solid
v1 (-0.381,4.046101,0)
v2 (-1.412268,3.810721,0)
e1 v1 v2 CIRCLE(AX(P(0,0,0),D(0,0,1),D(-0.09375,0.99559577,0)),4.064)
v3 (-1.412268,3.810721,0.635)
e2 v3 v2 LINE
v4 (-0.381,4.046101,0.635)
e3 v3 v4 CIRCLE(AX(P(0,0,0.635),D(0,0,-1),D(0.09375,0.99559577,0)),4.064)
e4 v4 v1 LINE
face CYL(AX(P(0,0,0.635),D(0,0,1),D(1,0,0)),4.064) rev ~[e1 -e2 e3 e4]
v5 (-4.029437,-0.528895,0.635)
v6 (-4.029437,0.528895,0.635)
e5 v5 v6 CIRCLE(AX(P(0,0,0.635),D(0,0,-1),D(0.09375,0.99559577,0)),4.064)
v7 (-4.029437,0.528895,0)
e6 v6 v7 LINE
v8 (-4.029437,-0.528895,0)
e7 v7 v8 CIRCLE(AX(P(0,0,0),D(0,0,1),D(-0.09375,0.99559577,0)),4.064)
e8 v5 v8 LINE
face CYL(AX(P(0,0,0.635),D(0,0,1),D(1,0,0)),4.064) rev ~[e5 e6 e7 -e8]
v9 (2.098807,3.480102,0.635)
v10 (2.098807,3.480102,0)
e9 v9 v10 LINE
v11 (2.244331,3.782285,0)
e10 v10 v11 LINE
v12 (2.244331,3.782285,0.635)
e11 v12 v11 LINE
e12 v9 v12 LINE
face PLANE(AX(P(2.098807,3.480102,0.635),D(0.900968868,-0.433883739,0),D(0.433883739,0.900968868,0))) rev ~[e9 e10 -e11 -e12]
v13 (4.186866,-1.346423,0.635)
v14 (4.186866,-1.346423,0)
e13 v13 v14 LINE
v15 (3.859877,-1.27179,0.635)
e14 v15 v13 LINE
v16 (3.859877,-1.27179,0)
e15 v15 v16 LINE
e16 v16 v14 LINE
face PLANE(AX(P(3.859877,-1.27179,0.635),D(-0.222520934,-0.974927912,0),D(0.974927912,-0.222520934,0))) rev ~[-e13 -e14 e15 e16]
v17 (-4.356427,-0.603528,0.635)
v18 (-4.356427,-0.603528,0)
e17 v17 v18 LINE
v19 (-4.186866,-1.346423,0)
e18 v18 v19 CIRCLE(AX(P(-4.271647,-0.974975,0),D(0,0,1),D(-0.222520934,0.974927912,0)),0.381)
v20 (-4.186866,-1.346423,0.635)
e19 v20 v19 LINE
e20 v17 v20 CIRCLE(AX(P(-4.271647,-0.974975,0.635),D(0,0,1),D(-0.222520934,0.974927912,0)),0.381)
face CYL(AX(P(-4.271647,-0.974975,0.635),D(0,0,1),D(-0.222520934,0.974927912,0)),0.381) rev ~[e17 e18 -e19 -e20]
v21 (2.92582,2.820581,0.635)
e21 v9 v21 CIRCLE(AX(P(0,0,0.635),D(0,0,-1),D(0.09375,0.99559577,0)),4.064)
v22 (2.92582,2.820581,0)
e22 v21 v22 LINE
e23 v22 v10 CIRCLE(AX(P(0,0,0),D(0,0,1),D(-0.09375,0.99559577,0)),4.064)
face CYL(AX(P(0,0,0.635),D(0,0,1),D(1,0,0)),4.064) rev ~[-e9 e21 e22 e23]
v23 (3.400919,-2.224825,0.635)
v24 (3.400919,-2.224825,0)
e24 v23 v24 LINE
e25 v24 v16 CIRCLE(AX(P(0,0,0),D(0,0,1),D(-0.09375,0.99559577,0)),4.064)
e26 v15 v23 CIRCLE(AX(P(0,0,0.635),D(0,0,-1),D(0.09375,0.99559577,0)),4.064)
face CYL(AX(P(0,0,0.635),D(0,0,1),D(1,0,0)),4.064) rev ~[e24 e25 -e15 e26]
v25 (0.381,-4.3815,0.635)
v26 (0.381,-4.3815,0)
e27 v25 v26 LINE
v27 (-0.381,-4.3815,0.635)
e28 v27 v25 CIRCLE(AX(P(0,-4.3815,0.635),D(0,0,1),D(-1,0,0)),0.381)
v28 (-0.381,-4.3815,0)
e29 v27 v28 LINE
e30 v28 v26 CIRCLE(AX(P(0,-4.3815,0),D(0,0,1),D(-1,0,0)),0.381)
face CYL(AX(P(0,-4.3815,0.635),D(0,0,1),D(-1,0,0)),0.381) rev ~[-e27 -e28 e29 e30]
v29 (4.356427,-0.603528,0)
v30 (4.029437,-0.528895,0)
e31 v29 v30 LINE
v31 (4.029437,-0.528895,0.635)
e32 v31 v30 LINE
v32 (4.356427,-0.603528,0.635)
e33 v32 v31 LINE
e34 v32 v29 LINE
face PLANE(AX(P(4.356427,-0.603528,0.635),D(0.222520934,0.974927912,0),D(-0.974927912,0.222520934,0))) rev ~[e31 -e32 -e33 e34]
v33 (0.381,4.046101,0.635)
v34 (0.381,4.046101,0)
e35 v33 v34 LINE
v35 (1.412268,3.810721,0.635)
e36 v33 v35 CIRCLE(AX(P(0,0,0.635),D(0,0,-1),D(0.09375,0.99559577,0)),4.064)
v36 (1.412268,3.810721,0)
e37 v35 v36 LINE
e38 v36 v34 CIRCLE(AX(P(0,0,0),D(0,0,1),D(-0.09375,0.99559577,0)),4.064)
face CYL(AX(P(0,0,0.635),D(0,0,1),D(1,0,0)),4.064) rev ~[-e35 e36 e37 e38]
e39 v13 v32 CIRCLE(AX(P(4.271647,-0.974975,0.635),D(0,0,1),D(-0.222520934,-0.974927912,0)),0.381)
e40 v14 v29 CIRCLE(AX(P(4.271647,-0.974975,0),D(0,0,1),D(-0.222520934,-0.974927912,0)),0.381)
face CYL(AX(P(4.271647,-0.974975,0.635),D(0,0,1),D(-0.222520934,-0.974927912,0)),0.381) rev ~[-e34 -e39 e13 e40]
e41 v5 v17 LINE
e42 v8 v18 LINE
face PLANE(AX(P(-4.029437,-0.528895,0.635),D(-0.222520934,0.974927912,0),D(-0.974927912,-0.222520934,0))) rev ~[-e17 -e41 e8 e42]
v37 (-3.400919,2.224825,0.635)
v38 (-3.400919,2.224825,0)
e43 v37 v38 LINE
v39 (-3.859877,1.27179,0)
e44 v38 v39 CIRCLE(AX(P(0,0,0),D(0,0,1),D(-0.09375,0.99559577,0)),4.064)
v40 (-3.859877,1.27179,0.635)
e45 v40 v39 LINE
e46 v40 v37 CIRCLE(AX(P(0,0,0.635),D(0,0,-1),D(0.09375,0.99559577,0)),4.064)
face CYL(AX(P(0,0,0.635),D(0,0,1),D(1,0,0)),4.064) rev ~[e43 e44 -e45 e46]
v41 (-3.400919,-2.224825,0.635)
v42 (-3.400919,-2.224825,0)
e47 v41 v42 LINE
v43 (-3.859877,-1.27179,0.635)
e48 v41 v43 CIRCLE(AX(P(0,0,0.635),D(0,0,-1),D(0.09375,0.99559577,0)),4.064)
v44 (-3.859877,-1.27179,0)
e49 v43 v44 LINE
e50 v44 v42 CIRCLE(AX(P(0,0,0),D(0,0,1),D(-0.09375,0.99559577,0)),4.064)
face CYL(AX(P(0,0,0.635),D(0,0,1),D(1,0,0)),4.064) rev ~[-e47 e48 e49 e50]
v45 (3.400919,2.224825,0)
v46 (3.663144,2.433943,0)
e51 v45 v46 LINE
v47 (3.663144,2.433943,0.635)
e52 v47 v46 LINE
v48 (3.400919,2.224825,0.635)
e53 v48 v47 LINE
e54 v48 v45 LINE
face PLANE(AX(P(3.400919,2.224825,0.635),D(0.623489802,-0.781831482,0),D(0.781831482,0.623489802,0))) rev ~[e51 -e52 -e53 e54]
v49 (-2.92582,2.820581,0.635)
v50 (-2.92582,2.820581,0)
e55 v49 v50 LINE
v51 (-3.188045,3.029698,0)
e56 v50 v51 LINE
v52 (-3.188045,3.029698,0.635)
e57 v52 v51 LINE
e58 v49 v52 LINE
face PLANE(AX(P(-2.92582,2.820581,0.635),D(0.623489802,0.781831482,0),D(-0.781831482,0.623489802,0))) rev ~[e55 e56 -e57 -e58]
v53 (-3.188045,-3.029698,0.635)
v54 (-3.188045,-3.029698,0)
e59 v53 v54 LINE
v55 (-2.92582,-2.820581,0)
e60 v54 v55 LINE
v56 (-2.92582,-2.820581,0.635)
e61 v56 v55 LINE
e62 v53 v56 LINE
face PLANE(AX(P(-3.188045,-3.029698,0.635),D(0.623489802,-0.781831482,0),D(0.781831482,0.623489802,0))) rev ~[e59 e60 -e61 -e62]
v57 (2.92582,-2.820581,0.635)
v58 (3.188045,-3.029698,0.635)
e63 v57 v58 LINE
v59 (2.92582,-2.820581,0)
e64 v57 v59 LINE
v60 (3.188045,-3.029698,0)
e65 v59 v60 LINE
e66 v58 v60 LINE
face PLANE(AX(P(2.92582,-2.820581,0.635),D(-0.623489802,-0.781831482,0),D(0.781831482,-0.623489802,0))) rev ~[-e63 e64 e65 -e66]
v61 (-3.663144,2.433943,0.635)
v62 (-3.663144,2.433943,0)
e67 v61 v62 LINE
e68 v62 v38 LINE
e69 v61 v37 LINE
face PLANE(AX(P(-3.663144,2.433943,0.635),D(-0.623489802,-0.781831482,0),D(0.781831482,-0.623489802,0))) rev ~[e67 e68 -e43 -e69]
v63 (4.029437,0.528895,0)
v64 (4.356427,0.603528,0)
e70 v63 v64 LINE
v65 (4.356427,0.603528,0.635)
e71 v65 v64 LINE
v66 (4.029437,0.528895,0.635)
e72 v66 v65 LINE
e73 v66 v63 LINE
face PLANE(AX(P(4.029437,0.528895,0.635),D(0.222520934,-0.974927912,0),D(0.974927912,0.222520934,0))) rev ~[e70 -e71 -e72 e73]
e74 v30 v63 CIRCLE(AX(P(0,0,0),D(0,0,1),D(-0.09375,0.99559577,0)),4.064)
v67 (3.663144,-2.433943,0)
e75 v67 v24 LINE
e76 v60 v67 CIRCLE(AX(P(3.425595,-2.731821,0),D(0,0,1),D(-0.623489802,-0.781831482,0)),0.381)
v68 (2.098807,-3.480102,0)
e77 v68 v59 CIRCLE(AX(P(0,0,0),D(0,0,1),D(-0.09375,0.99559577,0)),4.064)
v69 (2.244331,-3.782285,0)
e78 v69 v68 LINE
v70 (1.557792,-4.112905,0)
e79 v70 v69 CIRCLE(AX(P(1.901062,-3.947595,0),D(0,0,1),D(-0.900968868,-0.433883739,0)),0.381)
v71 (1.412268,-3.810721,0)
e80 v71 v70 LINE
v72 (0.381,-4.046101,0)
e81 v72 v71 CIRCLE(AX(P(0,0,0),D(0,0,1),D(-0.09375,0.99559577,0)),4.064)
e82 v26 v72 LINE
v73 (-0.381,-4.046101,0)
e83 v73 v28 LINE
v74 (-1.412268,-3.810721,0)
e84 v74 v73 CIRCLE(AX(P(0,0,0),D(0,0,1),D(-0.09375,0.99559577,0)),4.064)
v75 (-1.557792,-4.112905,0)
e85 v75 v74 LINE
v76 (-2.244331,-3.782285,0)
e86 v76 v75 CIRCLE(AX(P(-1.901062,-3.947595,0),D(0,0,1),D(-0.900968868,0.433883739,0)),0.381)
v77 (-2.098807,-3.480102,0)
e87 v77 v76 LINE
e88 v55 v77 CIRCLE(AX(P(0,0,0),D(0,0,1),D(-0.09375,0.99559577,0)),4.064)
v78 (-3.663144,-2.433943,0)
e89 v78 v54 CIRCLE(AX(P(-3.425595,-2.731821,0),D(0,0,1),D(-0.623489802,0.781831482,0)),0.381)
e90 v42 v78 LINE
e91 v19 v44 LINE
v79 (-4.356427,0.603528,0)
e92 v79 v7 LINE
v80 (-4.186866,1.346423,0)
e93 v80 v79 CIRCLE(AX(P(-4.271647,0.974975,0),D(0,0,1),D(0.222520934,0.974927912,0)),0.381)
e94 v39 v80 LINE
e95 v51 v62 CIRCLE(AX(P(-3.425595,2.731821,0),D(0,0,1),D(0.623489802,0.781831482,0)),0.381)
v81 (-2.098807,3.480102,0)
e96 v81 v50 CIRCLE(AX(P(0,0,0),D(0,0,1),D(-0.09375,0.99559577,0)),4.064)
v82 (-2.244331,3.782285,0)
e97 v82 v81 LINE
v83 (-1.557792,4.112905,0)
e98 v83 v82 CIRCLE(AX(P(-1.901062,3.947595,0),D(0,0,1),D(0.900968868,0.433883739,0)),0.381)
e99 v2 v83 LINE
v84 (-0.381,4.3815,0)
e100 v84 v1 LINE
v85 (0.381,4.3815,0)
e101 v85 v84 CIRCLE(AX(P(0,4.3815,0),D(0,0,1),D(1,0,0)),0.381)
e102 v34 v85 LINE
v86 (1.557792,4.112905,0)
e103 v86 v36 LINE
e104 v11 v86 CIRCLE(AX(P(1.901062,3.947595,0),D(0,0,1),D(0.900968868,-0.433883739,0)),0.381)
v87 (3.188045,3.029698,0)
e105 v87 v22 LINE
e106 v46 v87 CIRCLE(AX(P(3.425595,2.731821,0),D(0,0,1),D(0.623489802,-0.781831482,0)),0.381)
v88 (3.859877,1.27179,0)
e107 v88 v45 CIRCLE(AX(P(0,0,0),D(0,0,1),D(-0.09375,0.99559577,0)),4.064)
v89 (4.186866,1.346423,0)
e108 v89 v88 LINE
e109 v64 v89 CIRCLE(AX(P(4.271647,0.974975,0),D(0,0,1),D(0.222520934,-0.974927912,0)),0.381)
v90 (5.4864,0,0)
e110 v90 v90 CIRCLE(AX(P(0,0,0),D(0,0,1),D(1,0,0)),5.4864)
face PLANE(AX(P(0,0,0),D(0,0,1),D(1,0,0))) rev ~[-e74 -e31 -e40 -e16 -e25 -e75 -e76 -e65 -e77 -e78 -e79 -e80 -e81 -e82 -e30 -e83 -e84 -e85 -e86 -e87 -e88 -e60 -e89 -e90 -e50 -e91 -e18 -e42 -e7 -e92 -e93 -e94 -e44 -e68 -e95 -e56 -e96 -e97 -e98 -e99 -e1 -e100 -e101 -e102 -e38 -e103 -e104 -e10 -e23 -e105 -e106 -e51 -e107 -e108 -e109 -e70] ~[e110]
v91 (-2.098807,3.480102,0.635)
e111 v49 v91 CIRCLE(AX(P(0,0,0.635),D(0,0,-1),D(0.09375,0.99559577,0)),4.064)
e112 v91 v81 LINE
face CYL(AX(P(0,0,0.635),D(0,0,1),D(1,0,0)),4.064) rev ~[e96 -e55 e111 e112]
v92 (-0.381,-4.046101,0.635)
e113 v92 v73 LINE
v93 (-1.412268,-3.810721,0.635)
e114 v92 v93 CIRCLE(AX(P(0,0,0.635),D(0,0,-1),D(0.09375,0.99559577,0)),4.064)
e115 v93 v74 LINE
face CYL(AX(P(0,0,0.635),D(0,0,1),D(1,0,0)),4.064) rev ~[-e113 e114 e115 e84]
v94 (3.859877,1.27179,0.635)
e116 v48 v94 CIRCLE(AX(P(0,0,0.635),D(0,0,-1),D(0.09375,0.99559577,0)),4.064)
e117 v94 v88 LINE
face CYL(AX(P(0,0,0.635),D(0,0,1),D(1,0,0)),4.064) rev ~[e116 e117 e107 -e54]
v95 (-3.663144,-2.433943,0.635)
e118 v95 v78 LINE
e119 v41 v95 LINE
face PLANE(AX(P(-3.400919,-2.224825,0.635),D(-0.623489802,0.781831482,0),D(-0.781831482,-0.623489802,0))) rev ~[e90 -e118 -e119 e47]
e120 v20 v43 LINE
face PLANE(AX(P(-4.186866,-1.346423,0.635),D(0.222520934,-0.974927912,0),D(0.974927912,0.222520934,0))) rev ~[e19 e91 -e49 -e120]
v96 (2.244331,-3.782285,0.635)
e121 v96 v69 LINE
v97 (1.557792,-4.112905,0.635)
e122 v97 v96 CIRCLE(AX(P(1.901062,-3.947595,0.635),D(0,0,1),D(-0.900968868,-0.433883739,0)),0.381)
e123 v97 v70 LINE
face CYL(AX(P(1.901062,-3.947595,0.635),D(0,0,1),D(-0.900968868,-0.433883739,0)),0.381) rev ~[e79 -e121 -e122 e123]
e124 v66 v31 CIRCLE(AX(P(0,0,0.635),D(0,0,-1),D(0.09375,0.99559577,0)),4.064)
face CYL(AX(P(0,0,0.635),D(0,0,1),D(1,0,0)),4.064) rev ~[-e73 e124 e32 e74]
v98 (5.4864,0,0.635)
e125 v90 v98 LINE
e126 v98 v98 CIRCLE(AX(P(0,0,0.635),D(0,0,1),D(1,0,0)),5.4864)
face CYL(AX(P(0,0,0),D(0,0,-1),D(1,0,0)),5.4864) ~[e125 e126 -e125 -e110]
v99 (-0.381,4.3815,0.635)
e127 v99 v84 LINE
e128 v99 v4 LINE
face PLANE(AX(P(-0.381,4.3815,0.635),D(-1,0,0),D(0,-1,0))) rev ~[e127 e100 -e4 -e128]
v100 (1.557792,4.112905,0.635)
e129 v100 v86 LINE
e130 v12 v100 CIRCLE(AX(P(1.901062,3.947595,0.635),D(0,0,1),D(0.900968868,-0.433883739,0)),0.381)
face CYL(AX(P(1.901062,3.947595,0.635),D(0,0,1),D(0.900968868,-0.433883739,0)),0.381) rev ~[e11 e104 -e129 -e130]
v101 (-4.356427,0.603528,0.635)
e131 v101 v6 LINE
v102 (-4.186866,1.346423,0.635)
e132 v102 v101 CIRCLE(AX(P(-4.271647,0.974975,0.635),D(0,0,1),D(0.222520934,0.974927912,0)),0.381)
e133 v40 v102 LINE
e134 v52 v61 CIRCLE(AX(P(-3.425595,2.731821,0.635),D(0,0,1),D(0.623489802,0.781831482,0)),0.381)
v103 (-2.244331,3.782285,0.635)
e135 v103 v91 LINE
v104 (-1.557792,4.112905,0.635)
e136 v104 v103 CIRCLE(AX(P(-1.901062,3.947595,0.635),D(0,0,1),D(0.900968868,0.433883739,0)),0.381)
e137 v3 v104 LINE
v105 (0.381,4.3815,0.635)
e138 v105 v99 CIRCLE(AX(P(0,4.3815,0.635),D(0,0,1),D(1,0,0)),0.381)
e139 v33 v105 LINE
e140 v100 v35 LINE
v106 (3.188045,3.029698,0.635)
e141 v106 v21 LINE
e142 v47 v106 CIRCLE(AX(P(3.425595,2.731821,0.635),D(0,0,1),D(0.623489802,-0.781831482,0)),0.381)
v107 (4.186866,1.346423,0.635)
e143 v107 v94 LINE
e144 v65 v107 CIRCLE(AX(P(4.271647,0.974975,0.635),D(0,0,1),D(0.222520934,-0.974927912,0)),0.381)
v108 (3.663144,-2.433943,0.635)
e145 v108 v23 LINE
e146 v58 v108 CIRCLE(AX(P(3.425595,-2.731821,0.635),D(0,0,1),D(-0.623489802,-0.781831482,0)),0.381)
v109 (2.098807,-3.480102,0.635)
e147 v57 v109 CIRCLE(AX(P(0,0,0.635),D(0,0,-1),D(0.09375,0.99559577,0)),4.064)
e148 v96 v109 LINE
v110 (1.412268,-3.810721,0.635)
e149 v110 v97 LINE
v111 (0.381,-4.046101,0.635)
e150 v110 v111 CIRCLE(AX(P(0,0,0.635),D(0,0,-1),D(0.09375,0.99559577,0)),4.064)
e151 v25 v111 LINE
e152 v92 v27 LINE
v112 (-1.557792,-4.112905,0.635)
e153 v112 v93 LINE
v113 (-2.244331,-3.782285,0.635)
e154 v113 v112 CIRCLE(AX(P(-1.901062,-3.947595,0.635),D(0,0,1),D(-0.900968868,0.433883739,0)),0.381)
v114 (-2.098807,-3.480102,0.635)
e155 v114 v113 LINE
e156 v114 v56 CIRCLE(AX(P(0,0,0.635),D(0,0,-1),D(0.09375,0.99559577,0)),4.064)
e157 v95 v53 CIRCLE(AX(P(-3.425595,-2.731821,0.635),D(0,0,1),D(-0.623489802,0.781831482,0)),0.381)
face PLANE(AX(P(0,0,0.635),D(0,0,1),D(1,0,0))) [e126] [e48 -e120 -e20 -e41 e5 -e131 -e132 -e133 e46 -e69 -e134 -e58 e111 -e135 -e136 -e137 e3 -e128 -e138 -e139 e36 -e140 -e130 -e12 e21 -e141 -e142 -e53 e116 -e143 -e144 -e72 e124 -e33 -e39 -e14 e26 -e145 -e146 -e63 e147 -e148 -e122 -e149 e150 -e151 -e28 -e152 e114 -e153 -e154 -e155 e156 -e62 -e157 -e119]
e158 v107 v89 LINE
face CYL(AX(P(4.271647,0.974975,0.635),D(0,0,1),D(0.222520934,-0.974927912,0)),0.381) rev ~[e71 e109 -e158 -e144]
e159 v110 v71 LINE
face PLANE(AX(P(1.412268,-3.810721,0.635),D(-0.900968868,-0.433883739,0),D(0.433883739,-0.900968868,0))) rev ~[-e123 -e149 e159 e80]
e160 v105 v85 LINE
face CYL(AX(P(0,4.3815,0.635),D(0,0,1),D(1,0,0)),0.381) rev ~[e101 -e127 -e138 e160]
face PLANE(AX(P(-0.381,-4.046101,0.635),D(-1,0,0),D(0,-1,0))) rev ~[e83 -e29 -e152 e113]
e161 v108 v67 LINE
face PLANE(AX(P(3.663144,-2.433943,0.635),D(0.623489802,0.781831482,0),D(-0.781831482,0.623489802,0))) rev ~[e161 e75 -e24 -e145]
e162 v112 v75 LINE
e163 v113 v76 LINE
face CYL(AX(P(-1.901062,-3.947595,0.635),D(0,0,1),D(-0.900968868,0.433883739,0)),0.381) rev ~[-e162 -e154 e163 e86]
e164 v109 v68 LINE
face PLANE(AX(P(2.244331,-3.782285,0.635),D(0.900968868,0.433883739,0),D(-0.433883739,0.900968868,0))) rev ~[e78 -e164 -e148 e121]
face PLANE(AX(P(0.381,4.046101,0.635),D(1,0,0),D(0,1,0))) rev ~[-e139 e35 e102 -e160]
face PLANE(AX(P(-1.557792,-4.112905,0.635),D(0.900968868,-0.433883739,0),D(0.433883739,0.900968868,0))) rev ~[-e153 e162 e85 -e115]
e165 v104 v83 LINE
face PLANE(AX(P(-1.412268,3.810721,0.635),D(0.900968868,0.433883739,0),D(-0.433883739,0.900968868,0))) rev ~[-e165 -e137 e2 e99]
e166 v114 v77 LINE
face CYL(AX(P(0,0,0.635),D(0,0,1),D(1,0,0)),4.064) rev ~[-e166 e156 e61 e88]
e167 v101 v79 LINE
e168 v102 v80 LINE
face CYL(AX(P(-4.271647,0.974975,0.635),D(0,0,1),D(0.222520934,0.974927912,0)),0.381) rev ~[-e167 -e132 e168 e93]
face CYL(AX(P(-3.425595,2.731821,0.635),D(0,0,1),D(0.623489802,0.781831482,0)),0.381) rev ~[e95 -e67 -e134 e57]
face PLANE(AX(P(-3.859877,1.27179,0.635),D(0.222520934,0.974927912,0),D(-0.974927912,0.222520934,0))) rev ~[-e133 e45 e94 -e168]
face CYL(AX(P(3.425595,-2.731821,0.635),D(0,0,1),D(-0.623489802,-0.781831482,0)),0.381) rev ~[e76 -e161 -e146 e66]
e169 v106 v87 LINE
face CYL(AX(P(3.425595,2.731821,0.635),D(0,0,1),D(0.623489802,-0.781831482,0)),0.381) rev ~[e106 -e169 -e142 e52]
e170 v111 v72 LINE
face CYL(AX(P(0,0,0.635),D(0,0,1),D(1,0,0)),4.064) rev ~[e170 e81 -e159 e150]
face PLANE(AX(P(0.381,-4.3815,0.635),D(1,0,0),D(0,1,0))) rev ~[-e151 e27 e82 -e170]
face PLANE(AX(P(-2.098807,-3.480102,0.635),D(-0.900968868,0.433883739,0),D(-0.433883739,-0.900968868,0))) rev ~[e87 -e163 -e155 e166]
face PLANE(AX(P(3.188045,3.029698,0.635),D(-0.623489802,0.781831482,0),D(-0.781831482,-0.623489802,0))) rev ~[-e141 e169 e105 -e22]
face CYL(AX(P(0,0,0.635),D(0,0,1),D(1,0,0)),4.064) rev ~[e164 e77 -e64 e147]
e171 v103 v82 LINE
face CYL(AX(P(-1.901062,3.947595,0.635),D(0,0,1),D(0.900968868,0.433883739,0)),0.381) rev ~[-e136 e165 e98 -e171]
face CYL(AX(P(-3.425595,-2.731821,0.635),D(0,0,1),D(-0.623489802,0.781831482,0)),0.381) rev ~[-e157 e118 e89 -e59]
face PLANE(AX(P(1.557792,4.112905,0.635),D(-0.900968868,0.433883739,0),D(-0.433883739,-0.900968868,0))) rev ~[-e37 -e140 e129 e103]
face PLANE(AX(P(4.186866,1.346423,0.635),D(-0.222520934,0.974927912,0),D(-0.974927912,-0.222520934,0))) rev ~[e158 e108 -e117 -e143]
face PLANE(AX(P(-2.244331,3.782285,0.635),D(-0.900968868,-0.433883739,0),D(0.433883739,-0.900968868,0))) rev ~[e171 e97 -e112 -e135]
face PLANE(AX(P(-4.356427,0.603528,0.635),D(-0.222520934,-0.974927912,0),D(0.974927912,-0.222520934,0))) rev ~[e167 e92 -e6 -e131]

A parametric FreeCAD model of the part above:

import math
import FreeCAD as App
import Part
import Sketcher
from FreeCAD import Vector
Q = App.Units.Quantity

doc = App.newDocument("Part")
body = doc.addObject("PartDesign::Body", "Body")

# Sketch on XY plane
sketch1 = body.newObject("Sketcher::SketchObject", "Sketch")
sketch1.AttachmentSupport = (doc.getObject("XY_Plane"), [""])
sketch1.MapMode = "FlatFace"
sketch1.addGeometry(Part.Circle(Vector(0, 0, 0), Vector(0, 0, 1), 5.4864), False)
sketch1.addConstraint([
    Sketcher.Constraint("Coincident", 0, 3, -1, 1),
    Sketcher.Constraint("Diameter", 0, Q("0.432 in")),
])
pad1 = body.newObject("PartDesign::Pad", "Pad")
pad1.Profile = sketch1
pad1.Length = Q("0.025 in")

# Sketch on XY plane
sketch2 = body.newObject("Sketcher::SketchObject", "Sketch001")
sketch2.AttachmentSupport = (doc.getObject("XY_Plane"), [""])
sketch2.MapMode = "FlatFace"
sketch2.AttachmentOffset = App.Placement(Vector(0, 0, 0.025 * 25.4), App.Rotation())
sketch2.addGeometry(Part.Circle(Vector(0, 0, 0), Vector(0, 0, 1), 4.064), False)
sketch2.addConstraint([
    Sketcher.Constraint("Coincident", 0, 3, -1, 1),
    Sketcher.Constraint("Diameter", 0, Q("0.32 in")),
])
pocket1 = body.newObject("PartDesign::Pocket", "Pocket")
pocket1.Profile = sketch2
pocket1.Type = "ThroughAll"

# Sketch on XY plane
sketch3 = body.newObject("Sketcher::SketchObject", "Sketch002")
sketch3.AttachmentSupport = (doc.getObject("XY_Plane"), [""])
sketch3.MapMode = "FlatFace"
sketch3.AttachmentOffset = App.Placement(Vector(0, 0, 0.025 * 25.4), App.Rotation())
sketch3.addGeometry([
    Part.LineSegment(Vector(0.381, 4.046101, 0), Vector(0.381, 4.3815, 0)),
    Part.ArcOfCircle(Part.Circle(Vector(0, 4.3815, 0), Vector(0, 0, 1), 0.381), math.radians(0), math.radians(180)),
    Part.LineSegment(Vector(-0.381, 4.3815, 0), Vector(-0.381, 4.046101, 0)),
    Part.ArcOfCircle(Part.Circle(Vector(0, 0, 0), Vector(0, 0, 1), 4.064), math.radians(84.620621), math.radians(95.379379)),
], False)
sketch3.addConstraint([
    Sketcher.Constraint("Tangent", 0, 2, 1, 1),
    Sketcher.Constraint("Tangent", 1, 2, 2, 1),
    Sketcher.Constraint("Coincident", 2, 2, 3, 2),
    Sketcher.Constraint("Coincident", 3, 1, 0, 1),
    Sketcher.Constraint("Vertical", 0),
    Sketcher.Constraint("Vertical", 2),
    Sketcher.Constraint("Coincident", 3, 3, -1, 1),
    Sketcher.Constraint("PointOnObject", 1, 3, -2),
    Sketcher.Constraint("Radius", 3, Q("0.16 in")),
    Sketcher.Constraint("Radius", 1, Q("0.015 in")),
    Sketcher.Constraint("DistanceY", 0, 1, 0, 2, Q("0.335399 mm")),
])
pocket2 = body.newObject("PartDesign::Pocket", "Pocket001")
pocket2.Profile = sketch3
pocket2.Type = "ThroughAll"
doc.recompute()

polarpattern = body.newObject("PartDesign::PolarPattern", "PolarPattern")
polarpattern.Originals = [pocket2]
polarpattern.Axis = (doc.getObject("Z_Axis"), [""])
polarpattern.Angle = 360
polarpattern.Occurrences = 14
body.Tip = polarpattern

doc.recompute()
